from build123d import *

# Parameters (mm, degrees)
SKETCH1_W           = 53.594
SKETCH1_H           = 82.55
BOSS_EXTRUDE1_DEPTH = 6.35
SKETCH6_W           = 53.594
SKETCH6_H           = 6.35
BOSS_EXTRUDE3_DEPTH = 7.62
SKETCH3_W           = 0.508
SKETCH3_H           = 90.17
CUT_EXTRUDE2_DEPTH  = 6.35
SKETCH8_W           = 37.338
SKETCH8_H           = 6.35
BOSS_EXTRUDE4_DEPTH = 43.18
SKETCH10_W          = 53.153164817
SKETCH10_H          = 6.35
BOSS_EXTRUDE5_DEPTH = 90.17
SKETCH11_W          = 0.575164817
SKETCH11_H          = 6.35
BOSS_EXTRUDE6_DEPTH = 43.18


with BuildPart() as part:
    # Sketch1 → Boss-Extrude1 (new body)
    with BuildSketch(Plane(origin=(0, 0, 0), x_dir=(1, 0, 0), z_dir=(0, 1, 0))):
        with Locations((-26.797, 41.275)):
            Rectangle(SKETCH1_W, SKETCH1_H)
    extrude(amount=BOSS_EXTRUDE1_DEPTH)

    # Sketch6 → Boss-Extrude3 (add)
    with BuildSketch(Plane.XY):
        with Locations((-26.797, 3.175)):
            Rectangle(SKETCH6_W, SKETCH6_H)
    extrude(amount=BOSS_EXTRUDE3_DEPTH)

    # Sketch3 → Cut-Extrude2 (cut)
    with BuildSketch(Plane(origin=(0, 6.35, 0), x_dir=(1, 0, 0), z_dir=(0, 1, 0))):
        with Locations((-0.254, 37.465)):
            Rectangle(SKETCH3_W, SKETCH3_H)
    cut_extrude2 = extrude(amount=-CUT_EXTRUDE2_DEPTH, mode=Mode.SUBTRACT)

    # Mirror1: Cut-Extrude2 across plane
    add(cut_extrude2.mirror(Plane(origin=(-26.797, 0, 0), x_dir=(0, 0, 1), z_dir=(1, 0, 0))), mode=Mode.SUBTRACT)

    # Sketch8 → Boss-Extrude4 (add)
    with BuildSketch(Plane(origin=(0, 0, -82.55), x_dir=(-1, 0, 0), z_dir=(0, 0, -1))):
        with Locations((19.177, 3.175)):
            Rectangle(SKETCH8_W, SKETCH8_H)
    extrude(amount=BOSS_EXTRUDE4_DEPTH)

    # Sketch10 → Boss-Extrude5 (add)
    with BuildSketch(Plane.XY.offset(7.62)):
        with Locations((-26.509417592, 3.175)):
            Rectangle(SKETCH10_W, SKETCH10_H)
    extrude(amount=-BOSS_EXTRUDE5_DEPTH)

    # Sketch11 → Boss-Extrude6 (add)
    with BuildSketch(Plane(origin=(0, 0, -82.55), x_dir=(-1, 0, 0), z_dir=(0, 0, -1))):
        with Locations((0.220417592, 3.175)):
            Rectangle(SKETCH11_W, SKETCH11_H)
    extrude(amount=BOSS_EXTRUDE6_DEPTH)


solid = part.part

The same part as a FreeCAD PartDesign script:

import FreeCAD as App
import Part
import Sketcher
from FreeCAD import Vector
Q = App.Units.Quantity


def add_polygon(sketch, points):
    """Adds a closed chain of lines whose ends are joined by coincident constraints."""
    first, n = sketch.GeometryCount, len(points)
    for a, b in zip(points, points[1:] + points[:1]):
        sketch.addGeometry(Part.LineSegment(App.Vector(*a, 0), App.Vector(*b, 0)), False)
    for i in range(n):
        sketch.addConstraint(Sketcher.Constraint("Coincident", first + i, 2, first + (i + 1) % n, 1))

doc = App.newDocument("Part")
body = doc.addObject("PartDesign::Body", "Body")

# Sketch on XZ plane
sketch1 = body.newObject("Sketcher::SketchObject", "Sketch")
sketch1.AttachmentSupport = (doc.getObject("XZ_Plane"), [""])
sketch1.MapMode = "FlatFace"
add_polygon(sketch1, [(-54, -83), (-54, 0), (0, 0), (0, -83)])  # lines 0-3
sketch1.addConstraint(Sketcher.Constraint("Vertical", 0))
sketch1.addConstraint(Sketcher.Constraint("Horizontal", 1))
sketch1.addConstraint(Sketcher.Constraint("Vertical", 2))
sketch1.addConstraint(Sketcher.Constraint("Horizontal", 3))
sketch1.addConstraint(Sketcher.Constraint("Coincident", 1, 2, -1, 1))
sketch1.addConstraint(Sketcher.Constraint("DistanceX", 1, 1, 1, 2, Q("2.11 in")))
sketch1.addConstraint(Sketcher.Constraint("DistanceY", 0, 1, 0, 2, Q("3.25 in")))
pad1 = body.newObject("PartDesign::Pad", "Pad")
pad1.Profile = sketch1
pad1.Length = Q("0.25 in")
pad1.Reversed = True

# Sketch on XY plane
sketch2 = body.newObject("Sketcher::SketchObject", "Sketch001")
sketch2.AttachmentSupport = (doc.getObject("XY_Plane"), [""])
sketch2.MapMode = "FlatFace"
add_polygon(sketch2, [(-54, 6), (-54, 0), (0, 0), (0, 6)])  # lines 0-3
sketch2.addConstraint(Sketcher.Constraint("Vertical", 0))
sketch2.addConstraint(Sketcher.Constraint("Horizontal", 1))
sketch2.addConstraint(Sketcher.Constraint("Vertical", 2))
sketch2.addConstraint(Sketcher.Constraint("Horizontal", 3))
sketch2.addConstraint(Sketcher.Constraint("Coincident", 1, 2, -1, 1))
sketch2.addConstraint(Sketcher.Constraint("DistanceX", 1, 1, 1, 2, Q("2.11 in")))
sketch2.addConstraint(Sketcher.Constraint("DistanceY", 0, 2, 0, 1, Q("0.25 in")))
pad2 = body.newObject("PartDesign::Pad", "Pad001")
pad2.Profile = sketch2
pad2.Length = Q("0.3 in")

# Sketch on XZ plane
sketch3 = body.newObject("Sketcher::SketchObject", "Sketch002")
sketch3.AttachmentSupport = (doc.getObject("XZ_Plane"), [""])
sketch3.MapMode = "FlatFace"
sketch3.AttachmentOffset = App.Placement(Vector(0, 0, -0.25 * 25.4), App.Rotation())
add_polygon(sketch3, [(-0.5, -82.5), (-0.5, 7.6), (0, 7.6), (0, -82.5)])  # lines 0-3
sketch3.addConstraint(Sketcher.Constraint("Vertical", 0))
sketch3.addConstraint(Sketcher.Constraint("Horizontal", 1))
sketch3.addConstraint(Sketcher.Constraint("Vertical", 2))
sketch3.addConstraint(Sketcher.Constraint("Horizontal", 3))
sketch3.addConstraint(Sketcher.Constraint("PointOnObject", 1, 2, -2))
sketch3.addConstraint(Sketcher.Constraint("DistanceX", 1, 1, 1, 2, Q("0.02 in")))
sketch3.addConstraint(Sketcher.Constraint("DistanceY", 0, 1, 0, 2, Q("3.55 in")))
sketch3.addConstraint(Sketcher.Constraint("DistanceY", -1, 1, 0, 2, Q("0.3 in")))
pocket1 = body.newObject("PartDesign::Pocket", "Pocket")
pocket1.Profile = sketch3
pocket1.Length = Q("0.25 in")
pocket1.Reversed = True
doc.recompute()

datumplane = body.newObject("PartDesign::Plane", "DatumPlane")
datumplane.AttachmentSupport = (doc.getObject("YZ_Plane"), [""])
datumplane.MapMode = "FlatFace"
datumplane.AttachmentOffset = App.Placement(Vector(0, 0, -1.055 * 25.4), App.Rotation())
mirrored = body.newObject("PartDesign::Mirrored", "Mirrored")
mirrored.Originals = [pocket1]
mirrored.MirrorPlane = (datumplane, [""])
body.Tip = mirrored

# Sketch on XY plane
sketch4 = body.newObject("Sketcher::SketchObject", "Sketch003")
sketch4.AttachmentSupport = (doc.getObject("XY_Plane"), [""])
sketch4.MapMode = "FlatFace"
sketch4.AttachmentOffset = App.Placement(Vector(0, 0, -3.25 * 25.4), App.Rotation())
add_polygon(sketch4, [(-1, 6), (-1, 0), (-38, 0), (-38, 6)])  # lines 0-3
sketch4.addConstraint(Sketcher.Constraint("Vertical", 0))
sketch4.addConstraint(Sketcher.Constraint("Horizontal", 1))
sketch4.addConstraint(Sketcher.Constraint("Vertical", 2))
sketch4.addConstraint(Sketcher.Constraint("Horizontal", 3))
sketch4.addConstraint(Sketcher.Constraint("PointOnObject", 0, 2, -1))
sketch4.addConstraint(Sketcher.Constraint("DistanceX", 1, 2, 1, 1, Q("1.47 in")))
sketch4.addConstraint(Sketcher.Constraint("DistanceY", 0, 2, 0, 1, Q("0.25 in")))
sketch4.addConstraint(Sketcher.Constraint("DistanceX", 0, 2, -1, 1, Q("0.02 in")))
pad3 = body.newObject("PartDesign::Pad", "Pad002")
pad3.Profile = sketch4
pad3.Length = Q("1.7 in")
pad3.Reversed = True

# Sketch on XY plane
sketch5 = body.newObject("Sketcher::SketchObject", "Sketch004")
sketch5.AttachmentSupport = (doc.getObject("XY_Plane"), [""])
sketch5.MapMode = "FlatFace"
sketch5.AttachmentOffset = App.Placement(Vector(0, 0, 0.3 * 25.4), App.Rotation())
add_polygon(sketch5, [(-53, 6), (-53, 0), (0, 0), (0, 6)])  # lines 0-3
sketch5.addConstraint(Sketcher.Constraint("Vertical", 0))
sketch5.addConstraint(Sketcher.Constraint("Horizontal", 1))
sketch5.addConstraint(Sketcher.Constraint("Vertical", 2))
sketch5.addConstraint(Sketcher.Constraint("Horizontal", 3))
sketch5.addConstraint(Sketcher.Constraint("PointOnObject", 0, 2, -1))
sketch5.addConstraint(Sketcher.Constraint("DistanceY", 0, 2, 0, 1, Q("0.25 in")))
sketch5.addConstraint(Sketcher.Constraint("DistanceX", 0, 2, -1, 1, Q("2.09 in")))
sketch5.addConstraint(Sketcher.Constraint("DistanceX", 1, 1, 1, 2, 53.153165))
pad4 = body.newObject("PartDesign::Pad", "Pad003")
pad4.Profile = sketch5
pad4.Length = Q("3.55 in")
pad4.Reversed = True

# Sketch on XY plane
sketch6 = body.newObject("Sketcher::SketchObject", "Sketch005")
sketch6.AttachmentSupport = (doc.getObject("XY_Plane"), [""])
sketch6.MapMode = "FlatFace"
sketch6.AttachmentOffset = App.Placement(Vector(0, 0, -3.25 * 25.4), App.Rotation())
add_polygon(sketch6, [(0.1, 6.3), (0.1, 0), (-0.5, 0), (-0.5, 6.3)])  # lines 0-3
sketch6.addConstraint(Sketcher.Constraint("Vertical", 0))
sketch6.addConstraint(Sketcher.Constraint("Horizontal", 1))
sketch6.addConstraint(Sketcher.Constraint("Vertical", 2))
sketch6.addConstraint(Sketcher.Constraint("Horizontal", 3))
sketch6.addConstraint(Sketcher.Constraint("PointOnObject", 0, 2, -1))
sketch6.addConstraint(Sketcher.Constraint("DistanceY", 0, 2, 0, 1, Q("0.25 in")))
sketch6.addConstraint(Sketcher.Constraint("DistanceX", 1, 2, -1, 1, Q("0.02 in")))
sketch6.addConstraint(Sketcher.Constraint("DistanceX", 1, 2, 1, 1, 0.575165))
pad5 = body.newObject("PartDesign::Pad", "Pad004")
pad5.Profile = sketch6
pad5.Length = Q("1.7 in")
pad5.Reversed = True

doc.recompute()
